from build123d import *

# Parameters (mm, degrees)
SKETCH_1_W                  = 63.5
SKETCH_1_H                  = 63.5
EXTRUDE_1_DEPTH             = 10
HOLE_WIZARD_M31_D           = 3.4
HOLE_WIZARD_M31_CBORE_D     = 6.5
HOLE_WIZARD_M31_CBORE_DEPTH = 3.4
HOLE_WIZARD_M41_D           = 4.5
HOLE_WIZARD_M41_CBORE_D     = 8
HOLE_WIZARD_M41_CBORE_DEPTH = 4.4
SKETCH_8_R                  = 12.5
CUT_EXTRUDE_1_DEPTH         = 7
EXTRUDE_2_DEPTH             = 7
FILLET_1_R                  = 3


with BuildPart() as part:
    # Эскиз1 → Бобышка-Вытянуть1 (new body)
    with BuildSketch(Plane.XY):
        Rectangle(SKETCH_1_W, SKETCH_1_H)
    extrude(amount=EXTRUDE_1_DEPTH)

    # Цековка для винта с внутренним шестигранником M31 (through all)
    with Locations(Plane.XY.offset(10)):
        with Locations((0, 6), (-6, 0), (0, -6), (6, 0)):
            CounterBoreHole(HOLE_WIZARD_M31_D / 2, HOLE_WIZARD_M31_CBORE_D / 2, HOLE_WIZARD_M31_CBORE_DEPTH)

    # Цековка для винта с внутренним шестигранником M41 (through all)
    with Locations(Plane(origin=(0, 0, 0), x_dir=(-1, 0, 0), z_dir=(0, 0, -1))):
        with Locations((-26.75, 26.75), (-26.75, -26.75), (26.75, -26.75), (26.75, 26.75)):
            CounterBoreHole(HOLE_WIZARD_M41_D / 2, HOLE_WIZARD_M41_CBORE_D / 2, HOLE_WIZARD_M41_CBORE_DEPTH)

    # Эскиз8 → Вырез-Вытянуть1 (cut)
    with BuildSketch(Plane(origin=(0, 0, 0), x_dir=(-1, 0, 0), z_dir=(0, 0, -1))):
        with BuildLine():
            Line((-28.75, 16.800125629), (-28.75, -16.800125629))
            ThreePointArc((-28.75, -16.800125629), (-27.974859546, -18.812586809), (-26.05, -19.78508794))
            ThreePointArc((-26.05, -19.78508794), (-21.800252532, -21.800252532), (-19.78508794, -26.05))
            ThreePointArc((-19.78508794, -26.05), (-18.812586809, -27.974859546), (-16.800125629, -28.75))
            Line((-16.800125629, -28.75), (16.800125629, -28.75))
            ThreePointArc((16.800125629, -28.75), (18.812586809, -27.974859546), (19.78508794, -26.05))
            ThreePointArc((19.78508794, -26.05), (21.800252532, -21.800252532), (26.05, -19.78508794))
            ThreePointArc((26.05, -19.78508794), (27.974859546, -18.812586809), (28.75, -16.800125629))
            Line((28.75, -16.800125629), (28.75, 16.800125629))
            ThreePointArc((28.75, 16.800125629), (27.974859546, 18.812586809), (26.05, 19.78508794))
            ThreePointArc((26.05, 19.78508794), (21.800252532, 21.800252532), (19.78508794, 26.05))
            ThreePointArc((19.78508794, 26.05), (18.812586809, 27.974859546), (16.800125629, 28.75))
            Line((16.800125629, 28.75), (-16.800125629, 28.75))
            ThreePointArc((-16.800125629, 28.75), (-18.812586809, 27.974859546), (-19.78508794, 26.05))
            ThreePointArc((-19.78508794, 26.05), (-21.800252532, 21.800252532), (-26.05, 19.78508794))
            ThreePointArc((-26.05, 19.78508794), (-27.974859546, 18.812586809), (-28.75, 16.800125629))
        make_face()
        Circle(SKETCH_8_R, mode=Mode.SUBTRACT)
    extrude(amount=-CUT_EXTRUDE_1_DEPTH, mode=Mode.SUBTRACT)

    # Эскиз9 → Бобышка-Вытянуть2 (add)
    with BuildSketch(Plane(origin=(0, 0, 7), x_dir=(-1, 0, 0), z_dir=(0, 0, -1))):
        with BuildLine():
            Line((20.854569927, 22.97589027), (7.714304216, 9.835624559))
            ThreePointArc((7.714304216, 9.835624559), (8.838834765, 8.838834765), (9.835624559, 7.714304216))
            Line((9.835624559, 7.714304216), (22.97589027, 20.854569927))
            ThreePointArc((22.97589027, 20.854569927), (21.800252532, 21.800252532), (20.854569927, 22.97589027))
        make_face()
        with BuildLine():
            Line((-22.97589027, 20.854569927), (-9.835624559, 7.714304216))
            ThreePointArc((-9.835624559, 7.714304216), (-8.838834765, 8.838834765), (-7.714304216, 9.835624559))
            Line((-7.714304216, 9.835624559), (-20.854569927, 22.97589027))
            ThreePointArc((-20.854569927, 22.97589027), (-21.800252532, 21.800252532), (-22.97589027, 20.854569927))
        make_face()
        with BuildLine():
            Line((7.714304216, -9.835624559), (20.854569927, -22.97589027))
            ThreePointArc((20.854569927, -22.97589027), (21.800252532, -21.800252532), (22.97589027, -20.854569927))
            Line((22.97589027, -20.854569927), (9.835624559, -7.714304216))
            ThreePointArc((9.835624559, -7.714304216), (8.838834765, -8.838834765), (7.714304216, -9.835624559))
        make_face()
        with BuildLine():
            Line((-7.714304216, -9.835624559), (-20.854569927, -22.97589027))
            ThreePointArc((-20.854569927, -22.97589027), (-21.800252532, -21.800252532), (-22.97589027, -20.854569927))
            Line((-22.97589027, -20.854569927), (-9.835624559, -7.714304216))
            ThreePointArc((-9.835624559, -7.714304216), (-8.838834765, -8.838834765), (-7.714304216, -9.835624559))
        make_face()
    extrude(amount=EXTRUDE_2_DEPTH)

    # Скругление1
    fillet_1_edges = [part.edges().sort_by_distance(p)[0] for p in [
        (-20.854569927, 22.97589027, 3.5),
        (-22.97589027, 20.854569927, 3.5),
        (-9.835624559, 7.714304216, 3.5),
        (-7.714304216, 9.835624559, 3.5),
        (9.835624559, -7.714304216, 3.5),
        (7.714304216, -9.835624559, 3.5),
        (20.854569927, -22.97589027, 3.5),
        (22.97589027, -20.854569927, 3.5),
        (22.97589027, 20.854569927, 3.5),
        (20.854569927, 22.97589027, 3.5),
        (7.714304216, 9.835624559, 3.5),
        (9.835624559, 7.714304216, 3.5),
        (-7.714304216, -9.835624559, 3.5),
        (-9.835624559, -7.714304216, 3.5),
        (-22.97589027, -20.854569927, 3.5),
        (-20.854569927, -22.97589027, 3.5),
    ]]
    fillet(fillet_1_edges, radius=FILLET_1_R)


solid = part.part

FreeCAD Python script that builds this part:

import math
import FreeCAD as App
import Part
import Sketcher
from FreeCAD import Vector


def edges_at(feature, points):
    """Names of the edges that pass closest to the given points."""
    edges = feature.Shape.Edges
    near = lambda p: min(range(len(edges)), key=lambda i: edges[i].distToShape(Part.Vertex(*p))[0])
    return sorted({f"Edge{near(p) + 1}" for p in points})


def add_polygon(sketch, points):
    """Adds a closed chain of lines whose ends are joined by coincident constraints."""
    first, n = sketch.GeometryCount, len(points)
    for a, b in zip(points, points[1:] + points[:1]):
        sketch.addGeometry(Part.LineSegment(App.Vector(*a, 0), App.Vector(*b, 0)), False)
    for i in range(n):
        sketch.addConstraint(Sketcher.Constraint("Coincident", first + i, 2, first + (i + 1) % n, 1))

doc = App.newDocument("Part")
params = doc.addObject("Spreadsheet::Sheet", "Params")
for row, (alias, value) in enumerate([
    ("sketch1_width", "63.5 mm"),
    ("pad1_length", "10 mm"),
    ("sketch2_diameter", "3.4 mm"),
    ("hole_diameter", "3.4 mm"),
    ("hole_cbore_diameter", "6.5 mm"),
    ("hole_cbore_depth", "3.4 mm"),
    ("sketch3_diameter", "4.5 mm"),
    ("hole2_diameter", "4.5 mm"),
    ("hole2_cbore_diameter", "8 mm"),
    ("hole2_cbore_depth", "4.4 mm"),
    ("sketch4_diameter", "25 mm"),
    ("sketch4_radius", "3 mm"),
    ("sketch4_radius2", "7 mm"),
    ("pocket1_length", "7 mm"),
    ("sketch5_radius", "7 mm"),
    ("sketch5_radius2", "12.5 mm"),
    ("pad2_length", "7 mm"),
    ("fillet_radius", "3 mm"),
], start=1):
    params.set(f"A{row}", alias)
    params.set(f"B{row}", "=" + value)
    params.setAlias(f"B{row}", alias)

body = doc.addObject("PartDesign::Body", "Body")

# Sketch on XY plane
sketch1 = doc.addObject("Sketcher::SketchObject", "Sketch")
body.addObject(sketch1)
sketch1.AttachmentSupport = (doc.XY_Plane, [""])
sketch1.MapMode = "FlatFace"
add_polygon(sketch1, [(-32, 32), (-32, -32), (32, -32), (32, 32)])  # lines 0-3
sketch1.addConstraint([
    Sketcher.Constraint("Vertical", 0),
    Sketcher.Constraint("Horizontal", 1),
    Sketcher.Constraint("Vertical", 2),
    Sketcher.Constraint("Horizontal", 3),
    Sketcher.Constraint("Symmetric", 0, 2, 2, 2, -1, 1),
    Sketcher.Constraint("Equal", 3, 0),
    Sketcher.Constraint("DistanceX", 1, 1, 1, 2, 63.5),
])
sketch1.setExpression("Constraints[10]", "Params.sketch1_width")
pad1 = doc.addObject("PartDesign::Pad", "Pad")
body.addObject(pad1)
pad1.Profile = sketch1
pad1.setExpression("Length", "Params.pad1_length")

# Sketch on XY plane
sketch2 = doc.addObject("Sketcher::SketchObject", "Sketch001")
body.addObject(sketch2)
sketch2.AttachmentSupport = (doc.XY_Plane, [""])
sketch2.MapMode = "FlatFace"
sketch2.AttachmentOffset = App.Placement(Vector(0, 0, 10), App.Rotation())
sketch2.addGeometry([
    Part.Circle(Vector(0, 6, 0), Vector(0, 0, 1), 1.7),
    Part.Circle(Vector(-6, 0, 0), Vector(0, 0, 1), 1.7),
    Part.Circle(Vector(0, -6, 0), Vector(0, 0, 1), 1.7),
    Part.Circle(Vector(6, 0, 0), Vector(0, 0, 1), 1.7),
], False)
sketch2.addConstraint([
    Sketcher.Constraint("Equal", 0, 1),
    Sketcher.Constraint("Equal", 1, 2),
    Sketcher.Constraint("Equal", 2, 3),
    Sketcher.Constraint("Symmetric", 0, 3, 2, 3, -1, 1),
    Sketcher.Constraint("Symmetric", 1, 3, 3, 3, -1, 1),
    Sketcher.Constraint("PointOnObject", 0, 3, -2),
    Sketcher.Constraint("PointOnObject", 1, 3, -1),
    Sketcher.Constraint("Diameter", 0, 3.4),
    Sketcher.Constraint("DistanceY", -1, 1, 0, 3, 6.0),
    Sketcher.Constraint("DistanceX", 1, 3, -1, 1, 6.0),
])
sketch2.setExpression("Constraints[7]", "Params.sketch2_diameter")
doc.recompute()
hole = doc.addObject("PartDesign::Hole", "Hole")
body.addObject(hole)
hole.Profile = sketch2
hole.ThreadType = "None"
hole.setExpression("Diameter", "Params.hole_diameter")
hole.DepthType = "ThroughAll"
hole.HoleCutType = "Counterbore"
hole.setExpression("HoleCutDiameter", "Params.hole_cbore_diameter")
hole.setExpression("HoleCutDepth", "Params.hole_cbore_depth")

# Sketch on XY plane
sketch3 = doc.addObject("Sketcher::SketchObject", "Sketch002")
body.addObject(sketch3)
sketch3.AttachmentSupport = (doc.XY_Plane, [""])
sketch3.MapMode = "FlatFace"
sketch3.addGeometry([
    Part.Circle(Vector(26.8, 26.8, 0), Vector(0, 0, 1), 2.2),
    Part.Circle(Vector(26.8, -26.8, 0), Vector(0, 0, 1), 2.2),
    Part.Circle(Vector(-26.8, -26.8, 0), Vector(0, 0, 1), 2.2),
    Part.Circle(Vector(-26.8, 26.8, 0), Vector(0, 0, 1), 2.2),
], False)
sketch3.addConstraint([
    Sketcher.Constraint("Equal", 0, 1),
    Sketcher.Constraint("Equal", 1, 2),
    Sketcher.Constraint("Equal", 2, 3),
    Sketcher.Constraint("Symmetric", 0, 3, 2, 3, -1, 1),
    Sketcher.Constraint("Symmetric", 1, 3, 3, 3, -1, 1),
    Sketcher.Constraint("Symmetric", 1, 3, 2, 3, -2),
    Sketcher.Constraint("Diameter", 0, 4.5),
    Sketcher.Constraint("DistanceY", 1, 3, 0, 3, 53.5),
    Sketcher.Constraint("DistanceX", 2, 3, 1, 3, 53.5),
])
sketch3.setExpression("Constraints[6]", "Params.sketch3_diameter")
doc.recompute()
hole2 = doc.addObject("PartDesign::Hole", "Hole001")
body.addObject(hole2)
hole2.Profile = sketch3
hole2.ThreadType = "None"
hole2.setExpression("Diameter", "Params.hole2_diameter")
hole2.DepthType = "ThroughAll"
hole2.HoleCutType = "Counterbore"
hole2.setExpression("HoleCutDiameter", "Params.hole2_cbore_diameter")
hole2.setExpression("HoleCutDepth", "Params.hole2_cbore_depth")
hole2.Reversed = True

# Sketch on XY plane
sketch4 = doc.addObject("Sketcher::SketchObject", "Sketch003")
body.addObject(sketch4)
sketch4.AttachmentSupport = (doc.XY_Plane, [""])
sketch4.MapMode = "FlatFace"
sketch4.addGeometry([
    Part.LineSegment(Vector(28.8, 16.8, 0), Vector(28.8, -16.8, 0)),  # 0
    Part.ArcOfCircle(Part.Circle(Vector(25.8, -16.8, 0), Vector(0, 0, 1), 3), math.radians(-84), math.radians(0)),  # 1
    Part.ArcOfCircle(Part.Circle(Vector(26.8, -26.8, 0), Vector(0, 0, 1), 7), math.radians(96), math.radians(174)),  # 2
    Part.ArcOfCircle(Part.Circle(Vector(16.8, -25.8, 0), Vector(0, 0, 1), 3), math.radians(-90), math.radians(-6)),  # 3
    Part.LineSegment(Vector(16.8, -28.8, 0), Vector(-16.8, -28.8, 0)),  # 4
    Part.ArcOfCircle(Part.Circle(Vector(-16.8, -25.8, 0), Vector(0, 0, 1), 3), math.radians(-174), math.radians(-90)),  # 5
    Part.ArcOfCircle(Part.Circle(Vector(-26.8, -26.8, 0), Vector(0, 0, 1), 7), math.radians(6), math.radians(84)),  # 6
    Part.ArcOfCircle(Part.Circle(Vector(-25.8, -16.8, 0), Vector(0, 0, 1), 3), math.radians(180), math.radians(264)),  # 7
    Part.LineSegment(Vector(-28.8, -16.8, 0), Vector(-28.8, 16.8, 0)),  # 8
    Part.ArcOfCircle(Part.Circle(Vector(-25.8, 16.8, 0), Vector(0, 0, 1), 3), math.radians(96), math.radians(180)),  # 9
    Part.ArcOfCircle(Part.Circle(Vector(-26.8, 26.8, 0), Vector(0, 0, 1), 7), math.radians(-84), math.radians(-6)),  # 10
    Part.ArcOfCircle(Part.Circle(Vector(-16.8, 25.8, 0), Vector(0, 0, 1), 3), math.radians(90), math.radians(174)),  # 11
    Part.LineSegment(Vector(-16.8, 28.8, 0), Vector(16.8, 28.8, 0)),  # 12
    Part.ArcOfCircle(Part.Circle(Vector(16.8, 25.8, 0), Vector(0, 0, 1), 3), math.radians(6), math.radians(90)),  # 13
    Part.ArcOfCircle(Part.Circle(Vector(26.8, 26.8, 0), Vector(0, 0, 1), 7), math.radians(-174), math.radians(-96)),  # 14
    Part.ArcOfCircle(Part.Circle(Vector(25.8, 16.8, 0), Vector(0, 0, 1), 3), math.radians(0), math.radians(84)),  # 15
    Part.Circle(Vector(0, 0, 0), Vector(0, 0, 1), 12.5),  # 16
], False)
sketch4.addConstraint([
    Sketcher.Constraint("Tangent", 0, 2, 1, 2),
    Sketcher.Constraint("Tangent", 1, 1, 2, 1),
    Sketcher.Constraint("Tangent", 2, 2, 3, 2),
    Sketcher.Constraint("Tangent", 3, 1, 4, 1),
    Sketcher.Constraint("Tangent", 4, 2, 5, 2),
    Sketcher.Constraint("Tangent", 5, 1, 6, 1),
    Sketcher.Constraint("Tangent", 6, 2, 7, 2),
    Sketcher.Constraint("Tangent", 7, 1, 8, 1),
    Sketcher.Constraint("Tangent", 8, 2, 9, 2),
    Sketcher.Constraint("Tangent", 9, 1, 10, 1),
    Sketcher.Constraint("Tangent", 10, 2, 11, 2),
    Sketcher.Constraint("Tangent", 11, 1, 12, 1),
    Sketcher.Constraint("Tangent", 12, 2, 13, 2),
    Sketcher.Constraint("Tangent", 13, 1, 14, 1),
    Sketcher.Constraint("Tangent", 14, 2, 15, 2),
    Sketcher.Constraint("Tangent", 15, 1, 0, 1),
    Sketcher.Constraint("Vertical", 0),
    Sketcher.Constraint("Horizontal", 4),
    Sketcher.Constraint("Vertical", 8),
    Sketcher.Constraint("Horizontal", 12),
    Sketcher.Constraint("Coincident", 16, 3, -1, 1),
    Sketcher.Constraint("Equal", 1, 3),
    Sketcher.Constraint("Equal", 3, 5),
    Sketcher.Constraint("Equal", 2, 6),
    Sketcher.Constraint("Equal", 5, 7),
    Sketcher.Constraint("Equal", 7, 9),
    Sketcher.Constraint("Equal", 6, 10),
    Sketcher.Constraint("Equal", 9, 11),
    Sketcher.Constraint("Equal", 11, 13),
    Sketcher.Constraint("Equal", 10, 14),
    Sketcher.Constraint("Equal", 13, 15),
    Sketcher.Constraint("Symmetric", 1, 3, 9, 3, -1, 1),
    Sketcher.Constraint("Symmetric", 3, 3, 11, 3, -1, 1),
    Sketcher.Constraint("Symmetric", 6, 3, 14, 3, -1, 1),
    Sketcher.Constraint("Symmetric", 2, 3, 6, 3, -2),
    Sketcher.Constraint("Equal", 12, 0),
    Sketcher.Constraint("Diameter", 16, 25.0),
    Sketcher.Constraint("Radius", 1, 3.0),
    Sketcher.Constraint("Radius", 2, 7.0),
    Sketcher.Constraint("DistanceX", 1, 3, 2, 3, 1.0),
    Sketcher.Constraint("DistanceY", 2, 3, 3, 3, 1.0),
    Sketcher.Constraint("DistanceX", 6, 3, 1, 3, 52.5),
])
sketch4.setExpression("Constraints[36]", "Params.sketch4_diameter")
sketch4.setExpression("Constraints[37]", "Params.sketch4_radius")
sketch4.setExpression("Constraints[38]", "Params.sketch4_radius2")
pocket1 = doc.addObject("PartDesign::Pocket", "Pocket")
body.addObject(pocket1)
pocket1.Profile = sketch4
pocket1.setExpression("Length", "Params.pocket1_length")
pocket1.Reversed = True

# Sketch on XY plane
sketch5 = doc.addObject("Sketcher::SketchObject", "Sketch004")
body.addObject(sketch5)
sketch5.AttachmentSupport = (doc.XY_Plane, [""])
sketch5.MapMode = "FlatFace"
sketch5.AttachmentOffset = App.Placement(Vector(0, 0, 7), App.Rotation())
sketch5.addGeometry([
    Part.LineSegment(Vector(-20.9, 23, 0), Vector(-7.7, 9.8, 0)),  # 0
    Part.ArcOfCircle(Part.Circle(Vector(0, 0, 0), Vector(0, 0, 1), 12.5), math.radians(128.11), math.radians(141.89)),  # 1
    Part.LineSegment(Vector(-9.8, 7.7, 0), Vector(-23, 20.9, 0)),  # 2
    Part.ArcOfCircle(Part.Circle(Vector(-26.8, 26.8, 0), Vector(0, 0, 1), 7), math.radians(-57), math.radians(-33)),  # 3
    Part.LineSegment(Vector(23, 20.9, 0), Vector(9.8, 7.7, 0)),  # 4
    Part.ArcOfCircle(Part.Circle(Vector(0, 0, 0), Vector(0, 0, 1), 12.5), math.radians(38.11), math.radians(51.89)),  # 5
    Part.LineSegment(Vector(7.7, 9.8, 0), Vector(20.9, 23, 0)),  # 6
    Part.ArcOfCircle(Part.Circle(Vector(26.8, 26.8, 0), Vector(0, 0, 1), 7), math.radians(-147), math.radians(-123)),  # 7
    Part.LineSegment(Vector(-7.7, -9.8, 0), Vector(-20.9, -23, 0)),  # 8
    Part.ArcOfCircle(Part.Circle(Vector(-26.8, -26.8, 0), Vector(0, 0, 1), 7), math.radians(33), math.radians(57)),  # 9
    Part.LineSegment(Vector(-23, -20.9, 0), Vector(-9.8, -7.7, 0)),  # 10
    Part.ArcOfCircle(Part.Circle(Vector(0, 0, 0), Vector(0, 0, 1), 12.5), math.radians(-141.89), math.radians(-128.11)),  # 11
    Part.LineSegment(Vector(20.9, -23, 0), Vector(7.7, -9.8, 0)),  # 12
    Part.ArcOfCircle(Part.Circle(Vector(0, 0, 0), Vector(0, 0, 1), 12.5), math.radians(-51.89), math.radians(-38.11)),  # 13
    Part.LineSegment(Vector(9.8, -7.7, 0), Vector(23, -20.9, 0)),  # 14
    Part.ArcOfCircle(Part.Circle(Vector(26.8, -26.8, 0), Vector(0, 0, 1), 7), math.radians(123), math.radians(147)),  # 15
], False)
sketch5.addConstraint([
    Sketcher.Constraint("Coincident", 0, 2, 1, 1),
    Sketcher.Constraint("Coincident", 1, 2, 2, 1),
    Sketcher.Constraint("Coincident", 2, 2, 3, 1),
    Sketcher.Constraint("Coincident", 3, 2, 0, 1),
    Sketcher.Constraint("Coincident", 4, 2, 5, 1),
    Sketcher.Constraint("Coincident", 5, 2, 6, 1),
    Sketcher.Constraint("Coincident", 6, 2, 7, 1),
    Sketcher.Constraint("Coincident", 7, 2, 4, 1),
    Sketcher.Constraint("Coincident", 8, 2, 9, 1),
    Sketcher.Constraint("Coincident", 9, 2, 10, 1),
    Sketcher.Constraint("Coincident", 10, 2, 11, 1),
    Sketcher.Constraint("Coincident", 11, 2, 8, 1),
    Sketcher.Constraint("Coincident", 12, 2, 13, 1),
    Sketcher.Constraint("Coincident", 13, 2, 14, 1),
    Sketcher.Constraint("Coincident", 14, 2, 15, 1),
    Sketcher.Constraint("Coincident", 15, 2, 12, 1),
    Sketcher.Constraint("Coincident", 1, 3, -1, 1),
    Sketcher.Constraint("Coincident", 5, 3, -1, 1),
    Sketcher.Constraint("Coincident", 11, 3, -1, 1),
    Sketcher.Constraint("Coincident", 13, 3, -1, 1),
    Sketcher.Constraint("Equal", 1, 5),
    Sketcher.Constraint("Equal", 3, 7),
    Sketcher.Constraint("Equal", 7, 9),
    Sketcher.Constraint("Equal", 5, 11),
    Sketcher.Constraint("Equal", 11, 13),
    Sketcher.Constraint("Equal", 9, 15),
    Sketcher.Constraint("Symmetric", 7, 3, 9, 3, -1, 1),
    Sketcher.Constraint("Symmetric", 3, 3, 15, 3, -1, 1),
    Sketcher.Constraint("Symmetric", 3, 3, 7, 3, -2),
    Sketcher.Constraint("Parallel", 0, 2),
    Sketcher.Constraint("Perpendicular", 2, 4),
    Sketcher.Constraint("Parallel", 4, 6),
    Sketcher.Constraint("Parallel", 6, 8),
    Sketcher.Constraint("Parallel", 8, 10),
    Sketcher.Constraint("Perpendicular", 10, 12),
    Sketcher.Constraint("Parallel", 12, 14),
    Sketcher.Constraint("Horizontal", 1, 2, 4, 2),
    Sketcher.Constraint("Horizontal", 0, 2, 5, 2),
    Sketcher.Constraint("Horizontal", 3, 2, 6, 2),
    Sketcher.Constraint("Horizontal", 11, 2, 12, 2),
    Sketcher.Constraint("Horizontal", 10, 2, 13, 2),
    Sketcher.Constraint("Vertical", 3, 2, 8, 2),
    Sketcher.Constraint("Vertical", 2, 2, 9, 2),
    Sketcher.Constraint("Equal", 0, 2),
    Sketcher.Constraint("Radius", 3, 7.0),
    Sketcher.Constraint("Radius", 1, 12.5),
    Sketcher.Constraint("DistanceX", 3, 3, 7, 3, 53.5),
    Sketcher.Constraint("DistanceY", 9, 3, 3, 3, 53.5),
    Sketcher.Constraint("Distance", 0, 18.583142),
])
sketch5.setExpression("Constraints[44]", "Params.sketch5_radius")
sketch5.setExpression("Constraints[45]", "Params.sketch5_radius2")
pad2 = doc.addObject("PartDesign::Pad", "Pad001")
body.addObject(pad2)
pad2.Profile = sketch5
pad2.setExpression("Length", "Params.pad2_length")
pad2.Reversed = True
doc.recompute()

fillet = doc.addObject("PartDesign::Fillet", "Fillet")
body.addObject(fillet)
fillet.Base = (pad2, edges_at(pad2, [
    (-20.855, 22.976, 3.5),
    (-22.976, 20.855, 3.5),
    (-9.836, 7.714, 3.5),
    (-7.714, 9.836, 3.5),
    (9.836, -7.714, 3.5),
    (7.714, -9.836, 3.5),
    (20.855, -22.976, 3.5),
    (22.976, -20.855, 3.5),
    (22.976, 20.855, 3.5),
    (20.855, 22.976, 3.5),
    (7.714, 9.836, 3.5),
    (9.836, 7.714, 3.5),
    (-7.714, -9.836, 3.5),
    (-9.836, -7.714, 3.5),
    (-22.976, -20.855, 3.5),
    (-20.855, -22.976, 3.5),
]))
fillet.setExpression("Radius", "Params.fillet_radius")

doc.recompute()
